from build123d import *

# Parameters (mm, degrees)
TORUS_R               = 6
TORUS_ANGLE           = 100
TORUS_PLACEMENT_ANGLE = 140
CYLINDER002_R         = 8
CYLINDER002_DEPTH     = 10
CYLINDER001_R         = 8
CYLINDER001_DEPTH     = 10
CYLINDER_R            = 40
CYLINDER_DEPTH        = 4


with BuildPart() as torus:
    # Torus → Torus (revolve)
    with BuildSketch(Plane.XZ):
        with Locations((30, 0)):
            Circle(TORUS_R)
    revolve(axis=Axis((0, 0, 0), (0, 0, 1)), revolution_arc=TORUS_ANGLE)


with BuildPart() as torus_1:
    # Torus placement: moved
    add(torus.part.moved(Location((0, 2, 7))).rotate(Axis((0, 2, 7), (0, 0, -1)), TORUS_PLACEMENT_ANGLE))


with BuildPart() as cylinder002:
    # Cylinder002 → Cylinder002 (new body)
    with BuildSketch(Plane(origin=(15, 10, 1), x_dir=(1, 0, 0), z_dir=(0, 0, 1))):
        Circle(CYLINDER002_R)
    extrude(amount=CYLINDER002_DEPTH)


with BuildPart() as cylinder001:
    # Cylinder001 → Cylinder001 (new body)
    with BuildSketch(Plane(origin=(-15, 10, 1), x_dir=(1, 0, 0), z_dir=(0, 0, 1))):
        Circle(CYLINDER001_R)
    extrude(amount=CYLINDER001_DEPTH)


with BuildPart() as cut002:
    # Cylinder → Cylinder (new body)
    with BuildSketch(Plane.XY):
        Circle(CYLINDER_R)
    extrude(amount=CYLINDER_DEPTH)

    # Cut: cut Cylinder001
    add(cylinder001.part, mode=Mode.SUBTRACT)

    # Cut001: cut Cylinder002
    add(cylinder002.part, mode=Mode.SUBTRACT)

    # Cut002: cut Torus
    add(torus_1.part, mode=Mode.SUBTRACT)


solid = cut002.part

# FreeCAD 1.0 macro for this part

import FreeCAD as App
import Part
import Sketcher

V = App.Vector
Q = App.Units.Quantity

doc = App.newDocument("Part")
body = doc.addObject("PartDesign::Body", "Body")

sketch1 = body.newObject("Sketcher::SketchObject", "Sketch")
sketch1.AttachmentSupport = (doc.getObject("XZ_Plane"), [""])
sketch1.MapMode = "FlatFace"
sketch1.addGeometry(Part.Circle(V(30, 0, 0), V(0, 0, 1), 6), False)
sketch1.addConstraint([
    Sketcher.Constraint("PointOnObject", 0, 3, -1),
    Sketcher.Constraint("Diameter", 0, Q("12 mm")),
    Sketcher.Constraint("DistanceX", -1, 1, 0, 3, Q("30 mm")),
])
revolution = body.newObject("PartDesign::Revolution", "Revolution")
revolution.Profile = sketch1
revolution.ReferenceAxis = (sketch1, ["V_Axis"])
revolution.Angle = 100
body2 = doc.addObject("PartDesign::Body", "Body001")
doc.recompute()

body.Placement = App.Placement(V(0, 2, 7), App.Rotation(V(0, 0, -1), 140))
boolean = body2.newObject("PartDesign::Boolean", "Boolean")
boolean.Type = "Fuse"
boolean.addObjects([body])
body3 = doc.addObject("PartDesign::Body", "Body002")

sketch2 = body3.newObject("Sketcher::SketchObject", "Sketch001")
sketch2.AttachmentSupport = (doc.getObject("XY_Plane002"), [""])
sketch2.MapMode = "FlatFace"
sketch2.AttachmentOffset = App.Placement(V(0, 0, 1), App.Rotation())
sketch2.addGeometry(Part.Circle(V(15, 10, 0), V(0, 0, 1), 8), False)
sketch2.addConstraint([
    Sketcher.Constraint("Diameter", 0, Q("16 mm")),
    Sketcher.Constraint("DistanceX", -1, 1, 0, 3, Q("15 mm")),
    Sketcher.Constraint("DistanceY", -1, 1, 0, 3, Q("10 mm")),
])
pad1 = body3.newObject("PartDesign::Pad", "Pad")
pad1.Profile = sketch2
pad1.Length = 10
body4 = doc.addObject("PartDesign::Body", "Body003")

sketch3 = body4.newObject("Sketcher::SketchObject", "Sketch002")
sketch3.AttachmentSupport = (doc.getObject("XY_Plane003"), [""])
sketch3.MapMode = "FlatFace"
sketch3.AttachmentOffset = App.Placement(V(0, 0, 1), App.Rotation())
sketch3.addGeometry(Part.Circle(V(-15, 10, 0), V(0, 0, 1), 8), False)
sketch3.addConstraint([
    Sketcher.Constraint("Diameter", 0, Q("16 mm")),
    Sketcher.Constraint("DistanceX", 0, 3, -1, 1, Q("15 mm")),
    Sketcher.Constraint("DistanceY", -1, 1, 0, 3, Q("10 mm")),
])
pad2 = body4.newObject("PartDesign::Pad", "Pad001")
pad2.Profile = sketch3
pad2.Length = 10
body5 = doc.addObject("PartDesign::Body", "Body004")

sketch4 = body5.newObject("Sketcher::SketchObject", "Sketch003")
sketch4.AttachmentSupport = (doc.getObject("XY_Plane004"), [""])
sketch4.MapMode = "FlatFace"
sketch4.addGeometry(Part.Circle(V(0, 0, 0), V(0, 0, 1), 40), False)
sketch4.addConstraint([
    Sketcher.Constraint("Coincident", 0, 3, -1, 1),
    Sketcher.Constraint("Diameter", 0, Q("80 mm")),
])
pad3 = body5.newObject("PartDesign::Pad", "Pad002")
pad3.Profile = sketch4
pad3.Length = 4
doc.recompute()

boolean2 = body5.newObject("PartDesign::Boolean", "Boolean001")
boolean2.Type = "Cut"
boolean2.addObjects([body4])
doc.recompute()

boolean3 = body5.newObject("PartDesign::Boolean", "Boolean002")
boolean3.Type = "Cut"
boolean3.addObjects([body3])
doc.recompute()

boolean4 = body5.newObject("PartDesign::Boolean", "Boolean003")
boolean4.Type = "Cut"
boolean4.addObjects([body2])

doc.recompute()
